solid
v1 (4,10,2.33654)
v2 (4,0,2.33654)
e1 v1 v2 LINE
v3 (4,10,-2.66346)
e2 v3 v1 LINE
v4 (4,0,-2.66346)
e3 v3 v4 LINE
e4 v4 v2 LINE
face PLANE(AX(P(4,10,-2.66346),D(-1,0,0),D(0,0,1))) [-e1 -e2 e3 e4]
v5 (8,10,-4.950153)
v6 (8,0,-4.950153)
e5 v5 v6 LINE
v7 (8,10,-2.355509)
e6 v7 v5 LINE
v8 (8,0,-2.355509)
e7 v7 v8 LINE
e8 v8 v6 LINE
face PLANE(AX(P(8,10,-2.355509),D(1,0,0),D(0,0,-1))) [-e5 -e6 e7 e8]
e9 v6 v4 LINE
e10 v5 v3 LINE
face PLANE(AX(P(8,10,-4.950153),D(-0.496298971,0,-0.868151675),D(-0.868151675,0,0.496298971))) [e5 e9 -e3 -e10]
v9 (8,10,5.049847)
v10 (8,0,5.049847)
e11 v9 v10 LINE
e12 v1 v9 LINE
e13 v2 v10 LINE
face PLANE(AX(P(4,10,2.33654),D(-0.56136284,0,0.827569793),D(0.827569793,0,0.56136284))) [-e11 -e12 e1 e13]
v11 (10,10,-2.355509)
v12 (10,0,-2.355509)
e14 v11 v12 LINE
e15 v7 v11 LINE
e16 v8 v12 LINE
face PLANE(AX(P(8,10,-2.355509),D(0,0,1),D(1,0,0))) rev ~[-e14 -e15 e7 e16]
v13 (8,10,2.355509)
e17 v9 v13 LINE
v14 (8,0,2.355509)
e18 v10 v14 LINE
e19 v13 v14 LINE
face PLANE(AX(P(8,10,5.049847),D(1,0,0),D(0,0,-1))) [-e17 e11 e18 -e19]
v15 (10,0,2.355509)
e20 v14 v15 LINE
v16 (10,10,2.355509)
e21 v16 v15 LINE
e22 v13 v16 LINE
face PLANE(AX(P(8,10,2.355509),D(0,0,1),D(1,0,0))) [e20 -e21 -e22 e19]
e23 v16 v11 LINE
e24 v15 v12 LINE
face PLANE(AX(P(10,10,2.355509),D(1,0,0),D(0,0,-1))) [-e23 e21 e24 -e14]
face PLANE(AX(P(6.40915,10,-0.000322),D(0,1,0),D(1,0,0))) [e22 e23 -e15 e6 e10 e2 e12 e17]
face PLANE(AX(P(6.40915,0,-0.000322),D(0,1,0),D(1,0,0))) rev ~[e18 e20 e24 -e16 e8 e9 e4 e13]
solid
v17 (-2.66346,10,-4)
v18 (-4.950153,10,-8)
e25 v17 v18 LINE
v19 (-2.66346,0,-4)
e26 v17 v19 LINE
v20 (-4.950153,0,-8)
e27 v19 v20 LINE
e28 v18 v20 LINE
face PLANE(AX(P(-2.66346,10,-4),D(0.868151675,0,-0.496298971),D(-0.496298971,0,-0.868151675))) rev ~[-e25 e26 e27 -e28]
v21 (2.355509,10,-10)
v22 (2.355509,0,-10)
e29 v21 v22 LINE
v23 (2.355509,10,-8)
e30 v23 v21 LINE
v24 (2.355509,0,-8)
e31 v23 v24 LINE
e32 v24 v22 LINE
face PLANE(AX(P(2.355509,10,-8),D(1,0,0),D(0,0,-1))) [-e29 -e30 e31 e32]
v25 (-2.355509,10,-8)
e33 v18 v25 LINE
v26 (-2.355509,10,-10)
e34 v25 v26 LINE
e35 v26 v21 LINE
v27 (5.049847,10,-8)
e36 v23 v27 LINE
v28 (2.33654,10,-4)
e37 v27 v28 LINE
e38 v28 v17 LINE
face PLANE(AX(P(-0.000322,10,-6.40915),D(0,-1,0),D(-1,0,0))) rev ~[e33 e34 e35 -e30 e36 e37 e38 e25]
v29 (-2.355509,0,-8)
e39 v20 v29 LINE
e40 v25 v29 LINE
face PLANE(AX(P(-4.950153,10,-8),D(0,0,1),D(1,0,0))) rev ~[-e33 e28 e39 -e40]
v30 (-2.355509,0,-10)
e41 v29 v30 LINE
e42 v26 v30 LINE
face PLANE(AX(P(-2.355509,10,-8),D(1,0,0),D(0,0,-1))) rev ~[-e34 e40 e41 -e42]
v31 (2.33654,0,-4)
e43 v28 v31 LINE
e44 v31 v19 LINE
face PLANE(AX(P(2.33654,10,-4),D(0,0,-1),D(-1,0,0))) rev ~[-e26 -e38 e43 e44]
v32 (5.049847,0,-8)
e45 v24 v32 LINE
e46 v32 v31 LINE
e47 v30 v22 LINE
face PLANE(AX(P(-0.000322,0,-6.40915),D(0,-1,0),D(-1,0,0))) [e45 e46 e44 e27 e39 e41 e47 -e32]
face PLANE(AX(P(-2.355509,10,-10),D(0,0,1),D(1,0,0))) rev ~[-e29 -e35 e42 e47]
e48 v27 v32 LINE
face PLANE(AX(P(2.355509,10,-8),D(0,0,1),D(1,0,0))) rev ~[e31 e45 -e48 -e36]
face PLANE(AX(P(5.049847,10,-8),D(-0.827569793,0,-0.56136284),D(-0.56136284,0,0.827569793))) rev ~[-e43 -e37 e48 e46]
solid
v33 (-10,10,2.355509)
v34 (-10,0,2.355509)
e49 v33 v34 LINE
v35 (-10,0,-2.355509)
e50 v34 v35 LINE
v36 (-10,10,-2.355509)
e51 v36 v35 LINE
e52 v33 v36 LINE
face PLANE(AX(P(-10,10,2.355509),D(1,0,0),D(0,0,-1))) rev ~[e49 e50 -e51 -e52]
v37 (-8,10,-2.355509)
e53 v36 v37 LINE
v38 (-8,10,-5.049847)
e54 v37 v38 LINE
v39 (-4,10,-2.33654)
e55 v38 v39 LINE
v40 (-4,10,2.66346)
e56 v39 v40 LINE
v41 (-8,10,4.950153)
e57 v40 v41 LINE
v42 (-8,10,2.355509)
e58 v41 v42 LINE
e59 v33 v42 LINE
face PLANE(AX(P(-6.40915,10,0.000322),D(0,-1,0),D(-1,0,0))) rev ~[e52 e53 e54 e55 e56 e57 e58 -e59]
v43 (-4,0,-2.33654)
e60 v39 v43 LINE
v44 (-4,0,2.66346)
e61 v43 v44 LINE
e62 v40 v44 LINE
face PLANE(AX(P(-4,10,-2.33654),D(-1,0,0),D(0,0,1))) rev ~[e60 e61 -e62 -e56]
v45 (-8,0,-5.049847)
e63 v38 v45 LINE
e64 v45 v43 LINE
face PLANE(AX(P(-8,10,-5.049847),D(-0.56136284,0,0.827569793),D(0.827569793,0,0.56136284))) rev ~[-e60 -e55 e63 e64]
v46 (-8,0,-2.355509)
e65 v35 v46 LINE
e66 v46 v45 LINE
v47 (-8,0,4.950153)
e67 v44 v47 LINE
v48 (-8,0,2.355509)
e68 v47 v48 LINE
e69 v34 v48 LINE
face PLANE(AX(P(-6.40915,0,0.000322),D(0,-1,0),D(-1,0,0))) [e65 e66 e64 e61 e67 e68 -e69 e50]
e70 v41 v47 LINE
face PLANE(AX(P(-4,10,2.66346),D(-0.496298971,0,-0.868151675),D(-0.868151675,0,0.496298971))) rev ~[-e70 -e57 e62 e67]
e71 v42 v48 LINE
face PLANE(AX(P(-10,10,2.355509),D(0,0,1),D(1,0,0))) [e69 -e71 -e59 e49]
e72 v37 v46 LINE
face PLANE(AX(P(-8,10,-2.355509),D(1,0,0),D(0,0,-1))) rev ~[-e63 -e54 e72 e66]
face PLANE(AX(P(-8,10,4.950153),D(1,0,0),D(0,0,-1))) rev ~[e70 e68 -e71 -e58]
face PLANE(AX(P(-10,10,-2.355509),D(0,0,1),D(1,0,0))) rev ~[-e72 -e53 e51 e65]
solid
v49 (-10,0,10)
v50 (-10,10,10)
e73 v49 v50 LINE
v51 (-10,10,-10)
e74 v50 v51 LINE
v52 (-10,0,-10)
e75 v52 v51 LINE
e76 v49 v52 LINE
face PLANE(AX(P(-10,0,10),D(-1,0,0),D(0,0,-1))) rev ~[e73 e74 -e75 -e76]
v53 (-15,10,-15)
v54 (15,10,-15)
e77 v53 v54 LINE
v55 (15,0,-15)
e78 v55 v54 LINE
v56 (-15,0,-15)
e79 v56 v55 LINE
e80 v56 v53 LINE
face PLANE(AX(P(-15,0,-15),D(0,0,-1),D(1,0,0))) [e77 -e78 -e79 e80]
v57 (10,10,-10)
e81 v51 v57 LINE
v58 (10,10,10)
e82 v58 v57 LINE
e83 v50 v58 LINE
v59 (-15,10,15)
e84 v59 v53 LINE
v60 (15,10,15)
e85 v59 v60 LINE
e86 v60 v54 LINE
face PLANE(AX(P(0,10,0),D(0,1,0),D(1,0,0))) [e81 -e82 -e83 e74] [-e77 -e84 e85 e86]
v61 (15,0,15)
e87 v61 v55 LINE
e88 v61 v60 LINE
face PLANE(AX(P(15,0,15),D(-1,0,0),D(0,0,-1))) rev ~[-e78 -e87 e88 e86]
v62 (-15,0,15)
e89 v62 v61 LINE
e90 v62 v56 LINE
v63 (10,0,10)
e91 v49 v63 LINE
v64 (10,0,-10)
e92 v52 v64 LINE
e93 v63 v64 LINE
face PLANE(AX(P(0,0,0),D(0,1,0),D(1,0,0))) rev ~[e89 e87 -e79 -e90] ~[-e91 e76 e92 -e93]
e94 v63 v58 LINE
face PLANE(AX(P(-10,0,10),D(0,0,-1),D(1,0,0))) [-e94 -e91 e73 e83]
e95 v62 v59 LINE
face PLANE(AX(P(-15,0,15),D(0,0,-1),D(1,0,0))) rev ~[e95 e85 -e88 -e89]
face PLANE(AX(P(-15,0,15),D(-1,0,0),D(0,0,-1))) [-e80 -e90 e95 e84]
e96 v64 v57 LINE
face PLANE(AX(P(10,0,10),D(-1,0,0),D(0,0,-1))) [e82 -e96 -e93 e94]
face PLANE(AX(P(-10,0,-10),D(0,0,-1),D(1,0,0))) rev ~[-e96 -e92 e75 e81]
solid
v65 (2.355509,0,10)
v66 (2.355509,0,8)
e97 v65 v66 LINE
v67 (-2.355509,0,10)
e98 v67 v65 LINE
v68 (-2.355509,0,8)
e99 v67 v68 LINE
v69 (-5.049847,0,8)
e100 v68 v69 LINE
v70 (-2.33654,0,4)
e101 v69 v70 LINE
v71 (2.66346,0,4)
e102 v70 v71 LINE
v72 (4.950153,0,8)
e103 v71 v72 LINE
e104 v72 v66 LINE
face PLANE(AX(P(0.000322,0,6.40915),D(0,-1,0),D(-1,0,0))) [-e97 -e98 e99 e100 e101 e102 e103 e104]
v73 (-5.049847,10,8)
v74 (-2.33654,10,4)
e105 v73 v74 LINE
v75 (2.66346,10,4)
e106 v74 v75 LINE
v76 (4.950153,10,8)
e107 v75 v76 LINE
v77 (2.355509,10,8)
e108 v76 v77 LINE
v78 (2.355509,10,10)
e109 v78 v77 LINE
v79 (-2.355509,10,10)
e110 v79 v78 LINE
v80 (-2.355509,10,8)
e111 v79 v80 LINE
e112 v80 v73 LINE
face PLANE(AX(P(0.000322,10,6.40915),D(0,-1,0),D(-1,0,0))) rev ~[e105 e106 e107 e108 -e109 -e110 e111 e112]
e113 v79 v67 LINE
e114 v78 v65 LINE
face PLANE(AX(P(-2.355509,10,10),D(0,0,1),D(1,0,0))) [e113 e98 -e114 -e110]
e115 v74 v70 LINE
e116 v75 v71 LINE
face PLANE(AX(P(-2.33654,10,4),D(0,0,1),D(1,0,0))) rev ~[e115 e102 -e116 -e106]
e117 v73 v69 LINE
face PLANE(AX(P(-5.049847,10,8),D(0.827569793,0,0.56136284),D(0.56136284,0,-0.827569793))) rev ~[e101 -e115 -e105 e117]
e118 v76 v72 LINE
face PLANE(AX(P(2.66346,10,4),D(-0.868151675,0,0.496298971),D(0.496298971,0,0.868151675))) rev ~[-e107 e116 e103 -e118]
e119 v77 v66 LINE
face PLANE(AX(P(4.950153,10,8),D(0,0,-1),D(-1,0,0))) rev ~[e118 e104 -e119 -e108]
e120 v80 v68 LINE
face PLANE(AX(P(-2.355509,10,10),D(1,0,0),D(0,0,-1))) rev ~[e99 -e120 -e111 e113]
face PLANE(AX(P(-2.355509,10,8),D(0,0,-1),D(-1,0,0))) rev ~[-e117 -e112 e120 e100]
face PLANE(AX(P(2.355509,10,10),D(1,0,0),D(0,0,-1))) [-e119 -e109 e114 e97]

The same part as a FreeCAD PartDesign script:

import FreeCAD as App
import Part
import Sketcher

V = App.Vector
Q = App.Units.Quantity


def add_polygon(sketch, points):
    """Adds a closed chain of lines whose ends are joined by coincident constraints."""
    first, n = sketch.GeometryCount, len(points)
    for a, b in zip(points, points[1:] + points[:1]):
        sketch.addGeometry(Part.LineSegment(App.Vector(*a, 0), App.Vector(*b, 0)), False)
    for i in range(n):
        sketch.addConstraint(Sketcher.Constraint("Coincident", first + i, 2, first + (i + 1) % n, 1))

doc = App.newDocument("Part")
body = doc.addObject("PartDesign::Body", "Body")

sketch1 = body.newObject("Sketcher::SketchObject", "Sketch")
sketch1.AttachmentSupport = (doc.getObject("XZ_Plane"), [""])
sketch1.MapMode = "FlatFace"
add_polygon(sketch1, [(-15, -15), (-15, 15), (15, 15), (15, -15)])
add_polygon(sketch1, [(10, 10), (-10, 10), (-10, -10), (10, -10)])
sketch1.addConstraint(Sketcher.Constraint("Vertical", 0))
sketch1.addConstraint(Sketcher.Constraint("Horizontal", 1))
sketch1.addConstraint(Sketcher.Constraint("Vertical", 2))
sketch1.addConstraint(Sketcher.Constraint("Horizontal", 3))
sketch1.addConstraint(Sketcher.Constraint("Horizontal", 4))
sketch1.addConstraint(Sketcher.Constraint("Vertical", 5))
sketch1.addConstraint(Sketcher.Constraint("Horizontal", 6))
sketch1.addConstraint(Sketcher.Constraint("Vertical", 7))
sketch1.addConstraint(Sketcher.Constraint("Symmetric", 0, 2, 2, 2, -1, 1))
sketch1.addConstraint(Sketcher.Constraint("Symmetric", 4, 2, 6, 2, -1, 1))
sketch1.addConstraint(Sketcher.Constraint("Equal", 3, 0))
sketch1.addConstraint(Sketcher.Constraint("Equal", 6, 5))
sketch1.addConstraint(Sketcher.Constraint("DistanceX", 1, 1, 1, 2, Q("30 mm")))
sketch1.addConstraint(Sketcher.Constraint("DistanceX", 4, 2, 4, 1, Q("20 mm")))
pad1 = body.newObject("PartDesign::Pad", "Pad")
pad1.Profile = sketch1
pad1.Length = 10
pad1.Reversed = True
body2 = doc.addObject("PartDesign::Body", "Body001")
body2.AllowCompound = True

sketch2 = body2.newObject("Sketcher::SketchObject", "Sketch001")
sketch2.AttachmentSupport = (doc.getObject("XZ_Plane001"), [""])
sketch2.MapMode = "FlatFace"
sketch2.AttachmentOffset = App.Placement(V(0, 0, -10), App.Rotation())
add_polygon(sketch2, [(-2.66346, -4), (2.33654, -4), (5.049847, -8), (2.355509, -8), (2.355509, -10), (-2.355509, -10), (-2.355509, -8), (-4.950153, -8)])
add_polygon(sketch2, [(-4, 2.66346), (-4, -2.33654), (-8, -5.049847), (-8, -2.355509), (-10, -2.355509), (-10, 2.355509), (-8, 2.355509), (-8, 4.950153)])
add_polygon(sketch2, [(2.66346, 4), (-2.33654, 4), (-5.049847, 8), (-2.355509, 8), (-2.355509, 10), (2.355509, 10), (2.355509, 8), (4.950153, 8)])
add_polygon(sketch2, [(4, -2.66346), (4, 2.33654), (8, 5.049847), (8, 2.355509), (10, 2.355509), (10, -2.355509), (8, -2.355509), (8, -4.950153)])
sketch2.addConstraint(Sketcher.Constraint("Horizontal", 0))
sketch2.addConstraint(Sketcher.Constraint("Horizontal", 2))
sketch2.addConstraint(Sketcher.Constraint("Vertical", 3))
sketch2.addConstraint(Sketcher.Constraint("Horizontal", 4))
sketch2.addConstraint(Sketcher.Constraint("Vertical", 5))
sketch2.addConstraint(Sketcher.Constraint("Horizontal", 6))
sketch2.addConstraint(Sketcher.Constraint("Vertical", 8))
sketch2.addConstraint(Sketcher.Constraint("Vertical", 10))
sketch2.addConstraint(Sketcher.Constraint("Horizontal", 11))
sketch2.addConstraint(Sketcher.Constraint("Vertical", 12))
sketch2.addConstraint(Sketcher.Constraint("Horizontal", 13))
sketch2.addConstraint(Sketcher.Constraint("Vertical", 14))
sketch2.addConstraint(Sketcher.Constraint("Horizontal", 16))
sketch2.addConstraint(Sketcher.Constraint("Horizontal", 18))
sketch2.addConstraint(Sketcher.Constraint("Vertical", 19))
sketch2.addConstraint(Sketcher.Constraint("Horizontal", 20))
sketch2.addConstraint(Sketcher.Constraint("Vertical", 21))
sketch2.addConstraint(Sketcher.Constraint("Horizontal", 22))
sketch2.addConstraint(Sketcher.Constraint("Vertical", 24))
sketch2.addConstraint(Sketcher.Constraint("Vertical", 26))
sketch2.addConstraint(Sketcher.Constraint("Horizontal", 27))
sketch2.addConstraint(Sketcher.Constraint("Vertical", 28))
sketch2.addConstraint(Sketcher.Constraint("Horizontal", 29))
sketch2.addConstraint(Sketcher.Constraint("Vertical", 30))
sketch2.addConstraint(Sketcher.Constraint("Symmetric", 0, 2, 16, 2, -1, 1))
sketch2.addConstraint(Sketcher.Constraint("Symmetric", 1, 2, 17, 2, -1, 1))
sketch2.addConstraint(Sketcher.Constraint("Symmetric", 3, 2, 19, 2, -1, 1))
sketch2.addConstraint(Sketcher.Constraint("Symmetric", 5, 2, 21, 2, -1, 1))
sketch2.addConstraint(Sketcher.Constraint("Symmetric", 8, 2, 24, 2, -1, 1))
sketch2.addConstraint(Sketcher.Constraint("Symmetric", 9, 2, 25, 2, -1, 1))
sketch2.addConstraint(Sketcher.Constraint("Symmetric", 11, 2, 27, 2, -1, 1))
sketch2.addConstraint(Sketcher.Constraint("Symmetric", 13, 2, 29, 2, -1, 1))
sketch2.addConstraint(Sketcher.Constraint("Symmetric", 2, 2, 5, 2, -2))
sketch2.addConstraint(Sketcher.Constraint("Symmetric", 13, 2, 26, 2, -2))
sketch2.addConstraint(Sketcher.Constraint("Perpendicular", 1, 9))
sketch2.addConstraint(Sketcher.Constraint("Perpendicular", 7, 15))
sketch2.addConstraint(Sketcher.Constraint("Perpendicular", 15, 23))
sketch2.addConstraint(Sketcher.Constraint("Perpendicular", 23, 31))
sketch2.addConstraint(Sketcher.Constraint("Equal", 0, 16))
sketch2.addConstraint(Sketcher.Constraint("Equal", 29, 3))
sketch2.addConstraint(Sketcher.Constraint("Equal", 16, 8))
sketch2.addConstraint(Sketcher.Constraint("Equal", 18, 10))
sketch2.addConstraint(Sketcher.Constraint("Equal", 20, 12))
sketch2.addConstraint(Sketcher.Constraint("Equal", 22, 14))
sketch2.addConstraint(Sketcher.Constraint("Equal", 8, 24))
sketch2.addConstraint(Sketcher.Constraint("DistanceX", 0, 1, 0, 2, Q("5 mm")))
sketch2.addConstraint(Sketcher.Constraint("DistanceX", 11, 2, 11, 1, Q("2 mm")))
sketch2.addConstraint(Sketcher.Constraint("DistanceY", 0, 2, -1, 1, Q("4 mm")))
sketch2.addConstraint(Sketcher.Constraint("DistanceY", 1, 2, -1, 1, Q("8 mm")))
sketch2.addConstraint(Sketcher.Constraint("DistanceX", 8, 2, -1, 1, Q("4 mm")))
sketch2.addConstraint(Sketcher.Constraint("DistanceX", 2, 2, 2, 1, Q("2.694338 mm")))
sketch2.addConstraint(Sketcher.Constraint("Distance", 1, Q("4.833429 mm")))
sketch2.addConstraint(Sketcher.Constraint("Distance", 7, Q("4.60749 mm")))
sketch2.addConstraint(Sketcher.Constraint("DistanceX", 4, 2, 4, 1, Q("4.711017 mm")))
pad2 = body2.newObject("PartDesign::Pad", "Pad001")
pad2.Profile = sketch2
pad2.Length = 10

doc.recompute()
